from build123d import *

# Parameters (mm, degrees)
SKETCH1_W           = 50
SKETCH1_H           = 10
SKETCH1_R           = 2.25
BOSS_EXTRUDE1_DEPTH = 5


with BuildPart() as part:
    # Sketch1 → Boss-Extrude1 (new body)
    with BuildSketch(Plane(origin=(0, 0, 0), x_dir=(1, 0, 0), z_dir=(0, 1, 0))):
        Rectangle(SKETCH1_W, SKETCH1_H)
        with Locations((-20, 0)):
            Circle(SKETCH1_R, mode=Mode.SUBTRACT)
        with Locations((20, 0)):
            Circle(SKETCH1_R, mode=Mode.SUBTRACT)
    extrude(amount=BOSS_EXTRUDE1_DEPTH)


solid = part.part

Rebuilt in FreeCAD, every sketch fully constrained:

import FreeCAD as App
import Part
import Sketcher

V = App.Vector
Q = App.Units.Quantity

doc = App.newDocument("Part")
body = doc.addObject("PartDesign::Body", "Body")

# Sketch on XZ plane
sketch1 = body.newObject("Sketcher::SketchObject", "Sketch")
sketch1.AttachmentSupport = (doc.getObject("XZ_Plane"), [""])
sketch1.MapMode = "FlatFace"
sketch1.addGeometry(Part.LineSegment(V(-25, -5, 0), V(-25, 5, 0)), False)
sketch1.addGeometry(Part.LineSegment(V(-25, 5, 0), V(25, 5, 0)), False)
sketch1.addGeometry(Part.LineSegment(V(25, 5, 0), V(25, -5, 0)), False)
sketch1.addGeometry(Part.LineSegment(V(25, -5, 0), V(-25, -5, 0)), False)
sketch1.addGeometry(Part.Circle(V(-20, 0, 0), V(0, 0, 1), 2.2), False)
sketch1.addGeometry(Part.Circle(V(20, 0, 0), V(0, 0, 1), 2.2), False)
sketch1.addConstraint(Sketcher.Constraint("Coincident", 0, 2, 1, 1))
sketch1.addConstraint(Sketcher.Constraint("Coincident", 1, 2, 2, 1))
sketch1.addConstraint(Sketcher.Constraint("Coincident", 2, 2, 3, 1))
sketch1.addConstraint(Sketcher.Constraint("Coincident", 3, 2, 0, 1))
sketch1.addConstraint(Sketcher.Constraint("Vertical", 0))
sketch1.addConstraint(Sketcher.Constraint("Horizontal", 1))
sketch1.addConstraint(Sketcher.Constraint("Vertical", 2))
sketch1.addConstraint(Sketcher.Constraint("Horizontal", 3))
sketch1.addConstraint(Sketcher.Constraint("Equal", 4, 5))
sketch1.addConstraint(Sketcher.Constraint("Symmetric", 4, 3, 5, 3, -1, 1))
sketch1.addConstraint(Sketcher.Constraint("Symmetric", 0, 2, 2, 2, -1, 1))
sketch1.addConstraint(Sketcher.Constraint("PointOnObject", 4, 3, -1))
sketch1.addConstraint(Sketcher.Constraint("Diameter", 4, Q("4.5 mm")))
sketch1.addConstraint(Sketcher.Constraint("DistanceX", 1, 1, 1, 2, Q("50 mm")))
sketch1.addConstraint(Sketcher.Constraint("DistanceY", 0, 1, 0, 2, Q("10 mm")))
sketch1.addConstraint(Sketcher.Constraint("DistanceX", 4, 3, -1, 1, Q("20 mm")))
pad1 = body.newObject("PartDesign::Pad", "Pad")
pad1.Profile = sketch1
pad1.Length = 5
pad1.Reversed = True

doc.recompute()
